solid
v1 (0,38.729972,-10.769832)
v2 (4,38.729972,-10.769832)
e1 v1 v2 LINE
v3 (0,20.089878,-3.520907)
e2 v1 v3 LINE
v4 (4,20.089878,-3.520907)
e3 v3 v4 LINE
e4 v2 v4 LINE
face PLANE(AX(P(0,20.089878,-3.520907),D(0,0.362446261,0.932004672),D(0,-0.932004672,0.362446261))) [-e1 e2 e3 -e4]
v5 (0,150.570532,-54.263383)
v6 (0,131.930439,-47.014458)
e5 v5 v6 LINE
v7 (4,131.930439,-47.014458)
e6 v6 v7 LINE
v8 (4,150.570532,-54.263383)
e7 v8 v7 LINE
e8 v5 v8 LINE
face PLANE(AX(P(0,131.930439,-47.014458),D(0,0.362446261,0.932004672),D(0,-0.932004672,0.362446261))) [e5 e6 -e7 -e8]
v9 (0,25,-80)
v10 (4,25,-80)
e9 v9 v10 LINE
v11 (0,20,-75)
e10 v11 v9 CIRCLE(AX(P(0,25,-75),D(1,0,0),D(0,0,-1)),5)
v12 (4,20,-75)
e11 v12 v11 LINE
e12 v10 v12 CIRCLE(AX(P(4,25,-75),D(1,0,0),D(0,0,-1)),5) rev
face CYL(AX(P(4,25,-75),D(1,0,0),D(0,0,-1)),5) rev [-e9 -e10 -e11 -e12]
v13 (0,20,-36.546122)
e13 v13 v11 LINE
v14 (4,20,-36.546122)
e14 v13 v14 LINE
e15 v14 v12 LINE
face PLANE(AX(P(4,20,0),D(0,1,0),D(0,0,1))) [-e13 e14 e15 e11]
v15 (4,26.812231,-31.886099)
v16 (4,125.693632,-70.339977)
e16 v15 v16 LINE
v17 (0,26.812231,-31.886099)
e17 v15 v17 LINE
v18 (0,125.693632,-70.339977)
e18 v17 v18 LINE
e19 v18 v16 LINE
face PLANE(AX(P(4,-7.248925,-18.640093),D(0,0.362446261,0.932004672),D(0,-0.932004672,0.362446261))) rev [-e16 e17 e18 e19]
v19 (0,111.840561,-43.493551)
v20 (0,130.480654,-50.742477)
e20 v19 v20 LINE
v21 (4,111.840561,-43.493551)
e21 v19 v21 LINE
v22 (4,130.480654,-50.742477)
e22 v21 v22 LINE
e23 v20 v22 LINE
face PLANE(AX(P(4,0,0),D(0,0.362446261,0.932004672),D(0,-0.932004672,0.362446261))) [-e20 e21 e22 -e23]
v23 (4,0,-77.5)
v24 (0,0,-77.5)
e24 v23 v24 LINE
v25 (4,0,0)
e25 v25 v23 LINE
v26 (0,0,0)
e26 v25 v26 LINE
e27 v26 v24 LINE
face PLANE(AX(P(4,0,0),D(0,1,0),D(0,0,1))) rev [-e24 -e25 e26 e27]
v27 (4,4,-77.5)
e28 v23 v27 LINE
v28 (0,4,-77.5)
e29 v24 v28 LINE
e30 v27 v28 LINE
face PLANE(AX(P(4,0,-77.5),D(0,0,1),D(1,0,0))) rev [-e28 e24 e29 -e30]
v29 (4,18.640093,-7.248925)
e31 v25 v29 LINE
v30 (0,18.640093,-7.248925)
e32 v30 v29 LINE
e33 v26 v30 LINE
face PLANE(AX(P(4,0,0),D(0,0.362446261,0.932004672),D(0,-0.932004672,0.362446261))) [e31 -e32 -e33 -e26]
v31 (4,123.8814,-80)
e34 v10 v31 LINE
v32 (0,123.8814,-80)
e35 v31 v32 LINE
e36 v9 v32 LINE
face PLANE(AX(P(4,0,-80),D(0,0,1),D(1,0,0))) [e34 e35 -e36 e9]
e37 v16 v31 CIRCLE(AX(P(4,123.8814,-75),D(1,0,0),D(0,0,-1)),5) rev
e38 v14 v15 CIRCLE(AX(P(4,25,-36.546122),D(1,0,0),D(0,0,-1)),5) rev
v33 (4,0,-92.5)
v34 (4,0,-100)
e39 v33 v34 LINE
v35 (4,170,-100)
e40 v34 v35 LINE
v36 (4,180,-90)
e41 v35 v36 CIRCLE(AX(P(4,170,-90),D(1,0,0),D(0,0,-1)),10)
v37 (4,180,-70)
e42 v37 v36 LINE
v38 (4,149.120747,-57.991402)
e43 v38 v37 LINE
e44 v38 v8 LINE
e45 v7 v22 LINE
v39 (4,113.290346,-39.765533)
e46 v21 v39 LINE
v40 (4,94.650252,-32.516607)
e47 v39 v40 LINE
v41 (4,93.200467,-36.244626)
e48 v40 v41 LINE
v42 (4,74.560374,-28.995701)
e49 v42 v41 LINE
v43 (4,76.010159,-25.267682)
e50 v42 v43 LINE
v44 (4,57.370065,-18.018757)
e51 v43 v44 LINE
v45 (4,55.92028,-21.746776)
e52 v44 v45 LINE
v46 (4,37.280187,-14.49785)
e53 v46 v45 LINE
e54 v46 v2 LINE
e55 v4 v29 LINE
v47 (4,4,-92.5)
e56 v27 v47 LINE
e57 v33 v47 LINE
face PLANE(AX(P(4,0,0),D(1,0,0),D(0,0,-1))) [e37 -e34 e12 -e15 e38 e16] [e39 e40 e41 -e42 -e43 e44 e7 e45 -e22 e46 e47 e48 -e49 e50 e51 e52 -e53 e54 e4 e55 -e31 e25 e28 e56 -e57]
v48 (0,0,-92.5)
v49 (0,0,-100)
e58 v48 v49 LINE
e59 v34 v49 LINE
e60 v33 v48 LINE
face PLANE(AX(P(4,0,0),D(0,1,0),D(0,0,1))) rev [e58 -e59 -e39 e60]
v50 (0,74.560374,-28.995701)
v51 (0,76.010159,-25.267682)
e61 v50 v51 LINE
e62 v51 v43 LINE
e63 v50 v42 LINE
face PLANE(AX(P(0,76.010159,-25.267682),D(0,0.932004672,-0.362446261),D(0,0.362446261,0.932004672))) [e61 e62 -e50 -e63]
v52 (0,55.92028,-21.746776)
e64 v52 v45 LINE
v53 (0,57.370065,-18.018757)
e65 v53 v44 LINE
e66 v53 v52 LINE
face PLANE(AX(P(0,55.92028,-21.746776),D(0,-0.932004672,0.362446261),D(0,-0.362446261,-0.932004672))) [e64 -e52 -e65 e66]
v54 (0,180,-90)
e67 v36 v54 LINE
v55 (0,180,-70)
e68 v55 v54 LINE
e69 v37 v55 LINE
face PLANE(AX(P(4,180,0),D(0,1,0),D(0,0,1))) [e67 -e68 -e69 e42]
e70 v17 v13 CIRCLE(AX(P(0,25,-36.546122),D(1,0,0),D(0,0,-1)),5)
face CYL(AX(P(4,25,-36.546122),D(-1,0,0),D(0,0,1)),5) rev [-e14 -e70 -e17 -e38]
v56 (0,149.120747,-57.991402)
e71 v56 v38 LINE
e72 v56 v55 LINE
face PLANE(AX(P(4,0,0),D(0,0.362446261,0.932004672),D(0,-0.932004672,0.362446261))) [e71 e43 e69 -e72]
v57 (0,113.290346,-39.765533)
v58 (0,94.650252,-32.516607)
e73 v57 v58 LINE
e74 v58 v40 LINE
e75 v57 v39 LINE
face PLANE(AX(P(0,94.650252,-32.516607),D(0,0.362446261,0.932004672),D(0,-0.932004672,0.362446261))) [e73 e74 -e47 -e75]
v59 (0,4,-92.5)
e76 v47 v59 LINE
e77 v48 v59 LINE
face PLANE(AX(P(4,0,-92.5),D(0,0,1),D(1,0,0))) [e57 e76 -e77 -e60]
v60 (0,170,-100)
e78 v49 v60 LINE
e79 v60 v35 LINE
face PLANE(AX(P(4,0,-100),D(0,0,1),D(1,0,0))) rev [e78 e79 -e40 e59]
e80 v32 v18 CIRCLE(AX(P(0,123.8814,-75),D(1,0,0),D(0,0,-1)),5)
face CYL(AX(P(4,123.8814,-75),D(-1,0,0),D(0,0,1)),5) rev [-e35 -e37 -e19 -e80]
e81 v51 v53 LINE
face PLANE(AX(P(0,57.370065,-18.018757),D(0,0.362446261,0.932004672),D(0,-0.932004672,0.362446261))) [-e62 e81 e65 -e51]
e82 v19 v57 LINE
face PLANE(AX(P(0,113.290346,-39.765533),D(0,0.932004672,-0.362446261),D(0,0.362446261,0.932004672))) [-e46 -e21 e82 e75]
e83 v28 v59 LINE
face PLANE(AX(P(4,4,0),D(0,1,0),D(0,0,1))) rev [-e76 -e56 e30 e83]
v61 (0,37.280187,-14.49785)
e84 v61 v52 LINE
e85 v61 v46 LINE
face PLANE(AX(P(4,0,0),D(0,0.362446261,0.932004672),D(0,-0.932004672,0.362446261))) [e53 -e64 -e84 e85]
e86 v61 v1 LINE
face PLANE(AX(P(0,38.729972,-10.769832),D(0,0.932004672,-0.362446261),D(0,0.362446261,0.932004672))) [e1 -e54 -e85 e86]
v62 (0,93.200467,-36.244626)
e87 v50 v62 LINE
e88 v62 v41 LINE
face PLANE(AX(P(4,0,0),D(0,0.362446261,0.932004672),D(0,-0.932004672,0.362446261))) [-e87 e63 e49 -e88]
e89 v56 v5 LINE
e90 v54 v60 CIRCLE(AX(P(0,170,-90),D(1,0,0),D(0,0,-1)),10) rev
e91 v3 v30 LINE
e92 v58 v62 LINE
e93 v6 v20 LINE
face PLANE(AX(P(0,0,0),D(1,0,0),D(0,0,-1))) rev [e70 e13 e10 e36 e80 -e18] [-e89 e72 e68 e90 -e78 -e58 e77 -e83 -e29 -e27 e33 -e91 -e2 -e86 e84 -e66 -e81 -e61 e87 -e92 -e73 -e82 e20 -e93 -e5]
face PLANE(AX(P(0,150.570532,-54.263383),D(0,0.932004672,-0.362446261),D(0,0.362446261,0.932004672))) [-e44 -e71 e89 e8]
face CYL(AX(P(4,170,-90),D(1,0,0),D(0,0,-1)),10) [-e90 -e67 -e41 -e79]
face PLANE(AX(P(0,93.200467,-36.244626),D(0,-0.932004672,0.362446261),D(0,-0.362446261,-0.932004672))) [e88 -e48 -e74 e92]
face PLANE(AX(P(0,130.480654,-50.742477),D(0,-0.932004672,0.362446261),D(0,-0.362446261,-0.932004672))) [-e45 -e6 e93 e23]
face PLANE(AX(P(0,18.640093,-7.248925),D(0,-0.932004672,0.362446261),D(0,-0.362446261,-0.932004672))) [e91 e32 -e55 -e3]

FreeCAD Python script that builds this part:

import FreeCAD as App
import Part
import Sketcher
Q = App.Units.Quantity


def edges_at(feature, points):
    """Names of the edges that pass closest to the given points."""
    edges = feature.Shape.Edges
    near = lambda p: min(range(len(edges)), key=lambda i: edges[i].distToShape(Part.Vertex(*p))[0])
    return sorted({f"Edge{near(p) + 1}" for p in points})


def add_polygon(sketch, points):
    """Adds a closed chain of lines whose ends are joined by coincident constraints."""
    first, n = sketch.GeometryCount, len(points)
    for a, b in zip(points, points[1:] + points[:1]):
        sketch.addGeometry(Part.LineSegment(App.Vector(*a, 0), App.Vector(*b, 0)), False)
    for i in range(n):
        sketch.addConstraint(Sketcher.Constraint("Coincident", first + i, 2, first + (i + 1) % n, 1))

doc = App.newDocument("Part")
params = doc.addObject("Spreadsheet::Sheet", "Params")
for row, (alias, value) in enumerate([
    ("sketch1_width", "4 mm"),
    ("sketch1_width2", "180 mm"),
    ("sketch1_height", "15 mm"),
    ("sketch1_height2", "30 mm"),
    ("sketch1_height3", "77.5 mm"),
    ("pad1_length", "4 mm"),
    ("sketch2_length", "4 mm"),
    ("sketch2_length2", "20 mm"),
    ("pad2_length", "4 mm"),
    ("fillet_radius", "10 mm"),
    ("fillet2_radius", "5 mm"),
], start=1):
    params.set(f"A{row}", alias)
    params.set(f"B{row}", "=" + value)
    params.setAlias(f"B{row}", alias)

body = doc.addObject("PartDesign::Body", "Body")

# Sketch on YZ plane
sketch1 = doc.addObject("Sketcher::SketchObject", "Sketch")
body.addObject(sketch1)
sketch1.AttachmentSupport = (doc.YZ_Plane, [""])
sketch1.MapMode = "FlatFace"
add_polygon(sketch1, [(180, -70), (0, 0), (0, -77.5), (4, -77.5), (4, -92.5), (0, -92.5), (0, -100), (180, -100)])  # lines 0-7
add_polygon(sketch1, [(20, -29.2), (150.5, -80), (20, -80)])  # lines 8-10
sketch1.addConstraint([
    Sketcher.Constraint("Vertical", 1),
    Sketcher.Constraint("Horizontal", 2),
    Sketcher.Constraint("Vertical", 3),
    Sketcher.Constraint("Horizontal", 4),
    Sketcher.Constraint("Vertical", 5),
    Sketcher.Constraint("Horizontal", 6),
    Sketcher.Constraint("Vertical", 7),
    Sketcher.Constraint("Horizontal", 9),
    Sketcher.Constraint("Vertical", 10),
    Sketcher.Constraint("Coincident", 0, 2, -1, 1),
    Sketcher.Constraint("PointOnObject", 4, 2, -2),
    Sketcher.Constraint("Parallel", 0, 8),
    Sketcher.Constraint("DistanceX", 2, 1, 2, 2, Q("4 mm")),
    Sketcher.Constraint("DistanceX", 6, 1, 6, 2, Q("180 mm")),
    Sketcher.Constraint("DistanceY", 3, 2, 3, 1, Q("15 mm")),
    Sketcher.Constraint("DistanceY", 7, 1, 7, 2, Q("30 mm")),
    Sketcher.Constraint("DistanceY", 1, 2, 1, 1, Q("77.5 mm")),
    Sketcher.Constraint("DistanceY", 5, 2, 5, 1, Q("7.5 mm")),
    Sketcher.Constraint("DistanceY", 8, 2, -1, 1, Q("80 mm")),
    Sketcher.Constraint("DistanceX", -1, 1, 9, 2, Q("20 mm")),
    Sketcher.Constraint("DistanceX", 9, 2, 9, 1, Q("130.533692 mm")),
])
sketch1.setExpression("Constraints[23]", "Params.sketch1_width")
sketch1.setExpression("Constraints[24]", "Params.sketch1_width2")
sketch1.setExpression("Constraints[25]", "Params.sketch1_height")
sketch1.setExpression("Constraints[26]", "Params.sketch1_height2")
sketch1.setExpression("Constraints[27]", "Params.sketch1_height3")
pad1 = doc.addObject("PartDesign::Pad", "Pad")
body.addObject(pad1)
pad1.Profile = sketch1
pad1.setExpression("Length", "Params.pad1_length")

# Sketch on YZ plane
sketch2 = doc.addObject("Sketcher::SketchObject", "Sketch001")
body.addObject(sketch2)
sketch2.AttachmentSupport = (doc.YZ_Plane, [""])
sketch2.MapMode = "FlatFace"
sketch2.AttachmentOffset = App.Placement(App.Vector(0, 0, 4), App.Rotation())
add_polygon(sketch2, [(20.1, -3.5), (18.6, -7.2), (37.3, -14.5), (38.7, -10.8)])  # lines 0-3
add_polygon(sketch2, [(55.9, -21.7), (74.6, -29), (76, -25.3), (57.4, -18)])  # lines 4-7
add_polygon(sketch2, [(93.2, -36.2), (111.8, -43.5), (113.3, -39.8), (94.7, -32.5)])  # lines 8-11
add_polygon(sketch2, [(130.5, -50.7), (149.1, -58), (150.6, -54.3), (131.9, -47)])  # lines 12-15
sketch2.addConstraint([
    Sketcher.Constraint("Perpendicular", 0, 1),
    Sketcher.Constraint("Perpendicular", 1, 2),
    Sketcher.Constraint("Perpendicular", 2, 3),
    Sketcher.Constraint("Parallel", 3, 4),
    Sketcher.Constraint("Perpendicular", 4, 5),
    Sketcher.Constraint("Perpendicular", 5, 6),
    Sketcher.Constraint("Perpendicular", 6, 7),
    Sketcher.Constraint("Perpendicular", 7, 8),
    Sketcher.Constraint("Perpendicular", 8, 9),
    Sketcher.Constraint("Perpendicular", 9, 10),
    Sketcher.Constraint("Perpendicular", 10, 11),
    Sketcher.Constraint("Perpendicular", 11, 12),
    Sketcher.Constraint("Perpendicular", 12, 13),
    Sketcher.Constraint("Perpendicular", 13, 14),
    Sketcher.Constraint("Perpendicular", 14, 15),
    Sketcher.Constraint("Equal", 3, 4),
    Sketcher.Constraint("Equal", 2, 5),
    Sketcher.Constraint("Equal", 6, 8),
    Sketcher.Constraint("Equal", 7, 9),
    Sketcher.Constraint("Equal", 10, 12),
    Sketcher.Constraint("Equal", 11, 13),
    Sketcher.Constraint("Distance", 0, Q("4 mm")),
    Sketcher.Constraint("Distance", 1, Q("20 mm")),
    Sketcher.Constraint("DistanceY", 4, 2, -1, 1, Q("28.995701 mm")),
    Sketcher.Constraint("DistanceY", 12, 2, -1, 1, Q("57.991402 mm")),
    Sketcher.Constraint("DistanceX", 2, 2, 4, 2, Q("35.830402 mm")),
    Sketcher.Constraint("DistanceX", 5, 2, 8, 2, Q("35.830402 mm")),
    Sketcher.Constraint("DistanceY", 8, 2, 1, 2, Q("28.995701 mm")),
    Sketcher.Constraint("DistanceX", 9, 2, 12, 2, Q("35.830402 mm")),
    Sketcher.Constraint("DistanceY", 1, 2, -1, 1, Q("14.49785 mm")),
    Sketcher.Constraint("DistanceX", -1, 1, 2, 2, Q("38.729972 mm")),
    Sketcher.Constraint("DistanceY", 2, 2, -1, 1, Q("10.769832 mm")),
])
sketch2.setExpression("Constraints[37]", "Params.sketch2_length")
sketch2.setExpression("Constraints[38]", "Params.sketch2_length2")
pad2 = doc.addObject("PartDesign::Pad", "Pad001")
body.addObject(pad2)
pad2.Profile = sketch2
pad2.setExpression("Length", "Params.pad2_length")
pad2.Reversed = True
doc.recompute()

fillet = doc.addObject("PartDesign::Fillet", "Fillet")
body.addObject(fillet)
fillet.Base = (pad2, edges_at(pad2, [(2, 180, -100)]))
fillet.setExpression("Radius", "Params.fillet_radius")
doc.recompute()

fillet2 = doc.addObject("PartDesign::Fillet", "Fillet001")
body.addObject(fillet2)
fillet2.Base = (fillet, edges_at(fillet, [(2, 20, -80), (2, 150.534, -80), (2, 20, -29.237)]))
fillet2.setExpression("Radius", "Params.fillet2_radius")

doc.recompute()
